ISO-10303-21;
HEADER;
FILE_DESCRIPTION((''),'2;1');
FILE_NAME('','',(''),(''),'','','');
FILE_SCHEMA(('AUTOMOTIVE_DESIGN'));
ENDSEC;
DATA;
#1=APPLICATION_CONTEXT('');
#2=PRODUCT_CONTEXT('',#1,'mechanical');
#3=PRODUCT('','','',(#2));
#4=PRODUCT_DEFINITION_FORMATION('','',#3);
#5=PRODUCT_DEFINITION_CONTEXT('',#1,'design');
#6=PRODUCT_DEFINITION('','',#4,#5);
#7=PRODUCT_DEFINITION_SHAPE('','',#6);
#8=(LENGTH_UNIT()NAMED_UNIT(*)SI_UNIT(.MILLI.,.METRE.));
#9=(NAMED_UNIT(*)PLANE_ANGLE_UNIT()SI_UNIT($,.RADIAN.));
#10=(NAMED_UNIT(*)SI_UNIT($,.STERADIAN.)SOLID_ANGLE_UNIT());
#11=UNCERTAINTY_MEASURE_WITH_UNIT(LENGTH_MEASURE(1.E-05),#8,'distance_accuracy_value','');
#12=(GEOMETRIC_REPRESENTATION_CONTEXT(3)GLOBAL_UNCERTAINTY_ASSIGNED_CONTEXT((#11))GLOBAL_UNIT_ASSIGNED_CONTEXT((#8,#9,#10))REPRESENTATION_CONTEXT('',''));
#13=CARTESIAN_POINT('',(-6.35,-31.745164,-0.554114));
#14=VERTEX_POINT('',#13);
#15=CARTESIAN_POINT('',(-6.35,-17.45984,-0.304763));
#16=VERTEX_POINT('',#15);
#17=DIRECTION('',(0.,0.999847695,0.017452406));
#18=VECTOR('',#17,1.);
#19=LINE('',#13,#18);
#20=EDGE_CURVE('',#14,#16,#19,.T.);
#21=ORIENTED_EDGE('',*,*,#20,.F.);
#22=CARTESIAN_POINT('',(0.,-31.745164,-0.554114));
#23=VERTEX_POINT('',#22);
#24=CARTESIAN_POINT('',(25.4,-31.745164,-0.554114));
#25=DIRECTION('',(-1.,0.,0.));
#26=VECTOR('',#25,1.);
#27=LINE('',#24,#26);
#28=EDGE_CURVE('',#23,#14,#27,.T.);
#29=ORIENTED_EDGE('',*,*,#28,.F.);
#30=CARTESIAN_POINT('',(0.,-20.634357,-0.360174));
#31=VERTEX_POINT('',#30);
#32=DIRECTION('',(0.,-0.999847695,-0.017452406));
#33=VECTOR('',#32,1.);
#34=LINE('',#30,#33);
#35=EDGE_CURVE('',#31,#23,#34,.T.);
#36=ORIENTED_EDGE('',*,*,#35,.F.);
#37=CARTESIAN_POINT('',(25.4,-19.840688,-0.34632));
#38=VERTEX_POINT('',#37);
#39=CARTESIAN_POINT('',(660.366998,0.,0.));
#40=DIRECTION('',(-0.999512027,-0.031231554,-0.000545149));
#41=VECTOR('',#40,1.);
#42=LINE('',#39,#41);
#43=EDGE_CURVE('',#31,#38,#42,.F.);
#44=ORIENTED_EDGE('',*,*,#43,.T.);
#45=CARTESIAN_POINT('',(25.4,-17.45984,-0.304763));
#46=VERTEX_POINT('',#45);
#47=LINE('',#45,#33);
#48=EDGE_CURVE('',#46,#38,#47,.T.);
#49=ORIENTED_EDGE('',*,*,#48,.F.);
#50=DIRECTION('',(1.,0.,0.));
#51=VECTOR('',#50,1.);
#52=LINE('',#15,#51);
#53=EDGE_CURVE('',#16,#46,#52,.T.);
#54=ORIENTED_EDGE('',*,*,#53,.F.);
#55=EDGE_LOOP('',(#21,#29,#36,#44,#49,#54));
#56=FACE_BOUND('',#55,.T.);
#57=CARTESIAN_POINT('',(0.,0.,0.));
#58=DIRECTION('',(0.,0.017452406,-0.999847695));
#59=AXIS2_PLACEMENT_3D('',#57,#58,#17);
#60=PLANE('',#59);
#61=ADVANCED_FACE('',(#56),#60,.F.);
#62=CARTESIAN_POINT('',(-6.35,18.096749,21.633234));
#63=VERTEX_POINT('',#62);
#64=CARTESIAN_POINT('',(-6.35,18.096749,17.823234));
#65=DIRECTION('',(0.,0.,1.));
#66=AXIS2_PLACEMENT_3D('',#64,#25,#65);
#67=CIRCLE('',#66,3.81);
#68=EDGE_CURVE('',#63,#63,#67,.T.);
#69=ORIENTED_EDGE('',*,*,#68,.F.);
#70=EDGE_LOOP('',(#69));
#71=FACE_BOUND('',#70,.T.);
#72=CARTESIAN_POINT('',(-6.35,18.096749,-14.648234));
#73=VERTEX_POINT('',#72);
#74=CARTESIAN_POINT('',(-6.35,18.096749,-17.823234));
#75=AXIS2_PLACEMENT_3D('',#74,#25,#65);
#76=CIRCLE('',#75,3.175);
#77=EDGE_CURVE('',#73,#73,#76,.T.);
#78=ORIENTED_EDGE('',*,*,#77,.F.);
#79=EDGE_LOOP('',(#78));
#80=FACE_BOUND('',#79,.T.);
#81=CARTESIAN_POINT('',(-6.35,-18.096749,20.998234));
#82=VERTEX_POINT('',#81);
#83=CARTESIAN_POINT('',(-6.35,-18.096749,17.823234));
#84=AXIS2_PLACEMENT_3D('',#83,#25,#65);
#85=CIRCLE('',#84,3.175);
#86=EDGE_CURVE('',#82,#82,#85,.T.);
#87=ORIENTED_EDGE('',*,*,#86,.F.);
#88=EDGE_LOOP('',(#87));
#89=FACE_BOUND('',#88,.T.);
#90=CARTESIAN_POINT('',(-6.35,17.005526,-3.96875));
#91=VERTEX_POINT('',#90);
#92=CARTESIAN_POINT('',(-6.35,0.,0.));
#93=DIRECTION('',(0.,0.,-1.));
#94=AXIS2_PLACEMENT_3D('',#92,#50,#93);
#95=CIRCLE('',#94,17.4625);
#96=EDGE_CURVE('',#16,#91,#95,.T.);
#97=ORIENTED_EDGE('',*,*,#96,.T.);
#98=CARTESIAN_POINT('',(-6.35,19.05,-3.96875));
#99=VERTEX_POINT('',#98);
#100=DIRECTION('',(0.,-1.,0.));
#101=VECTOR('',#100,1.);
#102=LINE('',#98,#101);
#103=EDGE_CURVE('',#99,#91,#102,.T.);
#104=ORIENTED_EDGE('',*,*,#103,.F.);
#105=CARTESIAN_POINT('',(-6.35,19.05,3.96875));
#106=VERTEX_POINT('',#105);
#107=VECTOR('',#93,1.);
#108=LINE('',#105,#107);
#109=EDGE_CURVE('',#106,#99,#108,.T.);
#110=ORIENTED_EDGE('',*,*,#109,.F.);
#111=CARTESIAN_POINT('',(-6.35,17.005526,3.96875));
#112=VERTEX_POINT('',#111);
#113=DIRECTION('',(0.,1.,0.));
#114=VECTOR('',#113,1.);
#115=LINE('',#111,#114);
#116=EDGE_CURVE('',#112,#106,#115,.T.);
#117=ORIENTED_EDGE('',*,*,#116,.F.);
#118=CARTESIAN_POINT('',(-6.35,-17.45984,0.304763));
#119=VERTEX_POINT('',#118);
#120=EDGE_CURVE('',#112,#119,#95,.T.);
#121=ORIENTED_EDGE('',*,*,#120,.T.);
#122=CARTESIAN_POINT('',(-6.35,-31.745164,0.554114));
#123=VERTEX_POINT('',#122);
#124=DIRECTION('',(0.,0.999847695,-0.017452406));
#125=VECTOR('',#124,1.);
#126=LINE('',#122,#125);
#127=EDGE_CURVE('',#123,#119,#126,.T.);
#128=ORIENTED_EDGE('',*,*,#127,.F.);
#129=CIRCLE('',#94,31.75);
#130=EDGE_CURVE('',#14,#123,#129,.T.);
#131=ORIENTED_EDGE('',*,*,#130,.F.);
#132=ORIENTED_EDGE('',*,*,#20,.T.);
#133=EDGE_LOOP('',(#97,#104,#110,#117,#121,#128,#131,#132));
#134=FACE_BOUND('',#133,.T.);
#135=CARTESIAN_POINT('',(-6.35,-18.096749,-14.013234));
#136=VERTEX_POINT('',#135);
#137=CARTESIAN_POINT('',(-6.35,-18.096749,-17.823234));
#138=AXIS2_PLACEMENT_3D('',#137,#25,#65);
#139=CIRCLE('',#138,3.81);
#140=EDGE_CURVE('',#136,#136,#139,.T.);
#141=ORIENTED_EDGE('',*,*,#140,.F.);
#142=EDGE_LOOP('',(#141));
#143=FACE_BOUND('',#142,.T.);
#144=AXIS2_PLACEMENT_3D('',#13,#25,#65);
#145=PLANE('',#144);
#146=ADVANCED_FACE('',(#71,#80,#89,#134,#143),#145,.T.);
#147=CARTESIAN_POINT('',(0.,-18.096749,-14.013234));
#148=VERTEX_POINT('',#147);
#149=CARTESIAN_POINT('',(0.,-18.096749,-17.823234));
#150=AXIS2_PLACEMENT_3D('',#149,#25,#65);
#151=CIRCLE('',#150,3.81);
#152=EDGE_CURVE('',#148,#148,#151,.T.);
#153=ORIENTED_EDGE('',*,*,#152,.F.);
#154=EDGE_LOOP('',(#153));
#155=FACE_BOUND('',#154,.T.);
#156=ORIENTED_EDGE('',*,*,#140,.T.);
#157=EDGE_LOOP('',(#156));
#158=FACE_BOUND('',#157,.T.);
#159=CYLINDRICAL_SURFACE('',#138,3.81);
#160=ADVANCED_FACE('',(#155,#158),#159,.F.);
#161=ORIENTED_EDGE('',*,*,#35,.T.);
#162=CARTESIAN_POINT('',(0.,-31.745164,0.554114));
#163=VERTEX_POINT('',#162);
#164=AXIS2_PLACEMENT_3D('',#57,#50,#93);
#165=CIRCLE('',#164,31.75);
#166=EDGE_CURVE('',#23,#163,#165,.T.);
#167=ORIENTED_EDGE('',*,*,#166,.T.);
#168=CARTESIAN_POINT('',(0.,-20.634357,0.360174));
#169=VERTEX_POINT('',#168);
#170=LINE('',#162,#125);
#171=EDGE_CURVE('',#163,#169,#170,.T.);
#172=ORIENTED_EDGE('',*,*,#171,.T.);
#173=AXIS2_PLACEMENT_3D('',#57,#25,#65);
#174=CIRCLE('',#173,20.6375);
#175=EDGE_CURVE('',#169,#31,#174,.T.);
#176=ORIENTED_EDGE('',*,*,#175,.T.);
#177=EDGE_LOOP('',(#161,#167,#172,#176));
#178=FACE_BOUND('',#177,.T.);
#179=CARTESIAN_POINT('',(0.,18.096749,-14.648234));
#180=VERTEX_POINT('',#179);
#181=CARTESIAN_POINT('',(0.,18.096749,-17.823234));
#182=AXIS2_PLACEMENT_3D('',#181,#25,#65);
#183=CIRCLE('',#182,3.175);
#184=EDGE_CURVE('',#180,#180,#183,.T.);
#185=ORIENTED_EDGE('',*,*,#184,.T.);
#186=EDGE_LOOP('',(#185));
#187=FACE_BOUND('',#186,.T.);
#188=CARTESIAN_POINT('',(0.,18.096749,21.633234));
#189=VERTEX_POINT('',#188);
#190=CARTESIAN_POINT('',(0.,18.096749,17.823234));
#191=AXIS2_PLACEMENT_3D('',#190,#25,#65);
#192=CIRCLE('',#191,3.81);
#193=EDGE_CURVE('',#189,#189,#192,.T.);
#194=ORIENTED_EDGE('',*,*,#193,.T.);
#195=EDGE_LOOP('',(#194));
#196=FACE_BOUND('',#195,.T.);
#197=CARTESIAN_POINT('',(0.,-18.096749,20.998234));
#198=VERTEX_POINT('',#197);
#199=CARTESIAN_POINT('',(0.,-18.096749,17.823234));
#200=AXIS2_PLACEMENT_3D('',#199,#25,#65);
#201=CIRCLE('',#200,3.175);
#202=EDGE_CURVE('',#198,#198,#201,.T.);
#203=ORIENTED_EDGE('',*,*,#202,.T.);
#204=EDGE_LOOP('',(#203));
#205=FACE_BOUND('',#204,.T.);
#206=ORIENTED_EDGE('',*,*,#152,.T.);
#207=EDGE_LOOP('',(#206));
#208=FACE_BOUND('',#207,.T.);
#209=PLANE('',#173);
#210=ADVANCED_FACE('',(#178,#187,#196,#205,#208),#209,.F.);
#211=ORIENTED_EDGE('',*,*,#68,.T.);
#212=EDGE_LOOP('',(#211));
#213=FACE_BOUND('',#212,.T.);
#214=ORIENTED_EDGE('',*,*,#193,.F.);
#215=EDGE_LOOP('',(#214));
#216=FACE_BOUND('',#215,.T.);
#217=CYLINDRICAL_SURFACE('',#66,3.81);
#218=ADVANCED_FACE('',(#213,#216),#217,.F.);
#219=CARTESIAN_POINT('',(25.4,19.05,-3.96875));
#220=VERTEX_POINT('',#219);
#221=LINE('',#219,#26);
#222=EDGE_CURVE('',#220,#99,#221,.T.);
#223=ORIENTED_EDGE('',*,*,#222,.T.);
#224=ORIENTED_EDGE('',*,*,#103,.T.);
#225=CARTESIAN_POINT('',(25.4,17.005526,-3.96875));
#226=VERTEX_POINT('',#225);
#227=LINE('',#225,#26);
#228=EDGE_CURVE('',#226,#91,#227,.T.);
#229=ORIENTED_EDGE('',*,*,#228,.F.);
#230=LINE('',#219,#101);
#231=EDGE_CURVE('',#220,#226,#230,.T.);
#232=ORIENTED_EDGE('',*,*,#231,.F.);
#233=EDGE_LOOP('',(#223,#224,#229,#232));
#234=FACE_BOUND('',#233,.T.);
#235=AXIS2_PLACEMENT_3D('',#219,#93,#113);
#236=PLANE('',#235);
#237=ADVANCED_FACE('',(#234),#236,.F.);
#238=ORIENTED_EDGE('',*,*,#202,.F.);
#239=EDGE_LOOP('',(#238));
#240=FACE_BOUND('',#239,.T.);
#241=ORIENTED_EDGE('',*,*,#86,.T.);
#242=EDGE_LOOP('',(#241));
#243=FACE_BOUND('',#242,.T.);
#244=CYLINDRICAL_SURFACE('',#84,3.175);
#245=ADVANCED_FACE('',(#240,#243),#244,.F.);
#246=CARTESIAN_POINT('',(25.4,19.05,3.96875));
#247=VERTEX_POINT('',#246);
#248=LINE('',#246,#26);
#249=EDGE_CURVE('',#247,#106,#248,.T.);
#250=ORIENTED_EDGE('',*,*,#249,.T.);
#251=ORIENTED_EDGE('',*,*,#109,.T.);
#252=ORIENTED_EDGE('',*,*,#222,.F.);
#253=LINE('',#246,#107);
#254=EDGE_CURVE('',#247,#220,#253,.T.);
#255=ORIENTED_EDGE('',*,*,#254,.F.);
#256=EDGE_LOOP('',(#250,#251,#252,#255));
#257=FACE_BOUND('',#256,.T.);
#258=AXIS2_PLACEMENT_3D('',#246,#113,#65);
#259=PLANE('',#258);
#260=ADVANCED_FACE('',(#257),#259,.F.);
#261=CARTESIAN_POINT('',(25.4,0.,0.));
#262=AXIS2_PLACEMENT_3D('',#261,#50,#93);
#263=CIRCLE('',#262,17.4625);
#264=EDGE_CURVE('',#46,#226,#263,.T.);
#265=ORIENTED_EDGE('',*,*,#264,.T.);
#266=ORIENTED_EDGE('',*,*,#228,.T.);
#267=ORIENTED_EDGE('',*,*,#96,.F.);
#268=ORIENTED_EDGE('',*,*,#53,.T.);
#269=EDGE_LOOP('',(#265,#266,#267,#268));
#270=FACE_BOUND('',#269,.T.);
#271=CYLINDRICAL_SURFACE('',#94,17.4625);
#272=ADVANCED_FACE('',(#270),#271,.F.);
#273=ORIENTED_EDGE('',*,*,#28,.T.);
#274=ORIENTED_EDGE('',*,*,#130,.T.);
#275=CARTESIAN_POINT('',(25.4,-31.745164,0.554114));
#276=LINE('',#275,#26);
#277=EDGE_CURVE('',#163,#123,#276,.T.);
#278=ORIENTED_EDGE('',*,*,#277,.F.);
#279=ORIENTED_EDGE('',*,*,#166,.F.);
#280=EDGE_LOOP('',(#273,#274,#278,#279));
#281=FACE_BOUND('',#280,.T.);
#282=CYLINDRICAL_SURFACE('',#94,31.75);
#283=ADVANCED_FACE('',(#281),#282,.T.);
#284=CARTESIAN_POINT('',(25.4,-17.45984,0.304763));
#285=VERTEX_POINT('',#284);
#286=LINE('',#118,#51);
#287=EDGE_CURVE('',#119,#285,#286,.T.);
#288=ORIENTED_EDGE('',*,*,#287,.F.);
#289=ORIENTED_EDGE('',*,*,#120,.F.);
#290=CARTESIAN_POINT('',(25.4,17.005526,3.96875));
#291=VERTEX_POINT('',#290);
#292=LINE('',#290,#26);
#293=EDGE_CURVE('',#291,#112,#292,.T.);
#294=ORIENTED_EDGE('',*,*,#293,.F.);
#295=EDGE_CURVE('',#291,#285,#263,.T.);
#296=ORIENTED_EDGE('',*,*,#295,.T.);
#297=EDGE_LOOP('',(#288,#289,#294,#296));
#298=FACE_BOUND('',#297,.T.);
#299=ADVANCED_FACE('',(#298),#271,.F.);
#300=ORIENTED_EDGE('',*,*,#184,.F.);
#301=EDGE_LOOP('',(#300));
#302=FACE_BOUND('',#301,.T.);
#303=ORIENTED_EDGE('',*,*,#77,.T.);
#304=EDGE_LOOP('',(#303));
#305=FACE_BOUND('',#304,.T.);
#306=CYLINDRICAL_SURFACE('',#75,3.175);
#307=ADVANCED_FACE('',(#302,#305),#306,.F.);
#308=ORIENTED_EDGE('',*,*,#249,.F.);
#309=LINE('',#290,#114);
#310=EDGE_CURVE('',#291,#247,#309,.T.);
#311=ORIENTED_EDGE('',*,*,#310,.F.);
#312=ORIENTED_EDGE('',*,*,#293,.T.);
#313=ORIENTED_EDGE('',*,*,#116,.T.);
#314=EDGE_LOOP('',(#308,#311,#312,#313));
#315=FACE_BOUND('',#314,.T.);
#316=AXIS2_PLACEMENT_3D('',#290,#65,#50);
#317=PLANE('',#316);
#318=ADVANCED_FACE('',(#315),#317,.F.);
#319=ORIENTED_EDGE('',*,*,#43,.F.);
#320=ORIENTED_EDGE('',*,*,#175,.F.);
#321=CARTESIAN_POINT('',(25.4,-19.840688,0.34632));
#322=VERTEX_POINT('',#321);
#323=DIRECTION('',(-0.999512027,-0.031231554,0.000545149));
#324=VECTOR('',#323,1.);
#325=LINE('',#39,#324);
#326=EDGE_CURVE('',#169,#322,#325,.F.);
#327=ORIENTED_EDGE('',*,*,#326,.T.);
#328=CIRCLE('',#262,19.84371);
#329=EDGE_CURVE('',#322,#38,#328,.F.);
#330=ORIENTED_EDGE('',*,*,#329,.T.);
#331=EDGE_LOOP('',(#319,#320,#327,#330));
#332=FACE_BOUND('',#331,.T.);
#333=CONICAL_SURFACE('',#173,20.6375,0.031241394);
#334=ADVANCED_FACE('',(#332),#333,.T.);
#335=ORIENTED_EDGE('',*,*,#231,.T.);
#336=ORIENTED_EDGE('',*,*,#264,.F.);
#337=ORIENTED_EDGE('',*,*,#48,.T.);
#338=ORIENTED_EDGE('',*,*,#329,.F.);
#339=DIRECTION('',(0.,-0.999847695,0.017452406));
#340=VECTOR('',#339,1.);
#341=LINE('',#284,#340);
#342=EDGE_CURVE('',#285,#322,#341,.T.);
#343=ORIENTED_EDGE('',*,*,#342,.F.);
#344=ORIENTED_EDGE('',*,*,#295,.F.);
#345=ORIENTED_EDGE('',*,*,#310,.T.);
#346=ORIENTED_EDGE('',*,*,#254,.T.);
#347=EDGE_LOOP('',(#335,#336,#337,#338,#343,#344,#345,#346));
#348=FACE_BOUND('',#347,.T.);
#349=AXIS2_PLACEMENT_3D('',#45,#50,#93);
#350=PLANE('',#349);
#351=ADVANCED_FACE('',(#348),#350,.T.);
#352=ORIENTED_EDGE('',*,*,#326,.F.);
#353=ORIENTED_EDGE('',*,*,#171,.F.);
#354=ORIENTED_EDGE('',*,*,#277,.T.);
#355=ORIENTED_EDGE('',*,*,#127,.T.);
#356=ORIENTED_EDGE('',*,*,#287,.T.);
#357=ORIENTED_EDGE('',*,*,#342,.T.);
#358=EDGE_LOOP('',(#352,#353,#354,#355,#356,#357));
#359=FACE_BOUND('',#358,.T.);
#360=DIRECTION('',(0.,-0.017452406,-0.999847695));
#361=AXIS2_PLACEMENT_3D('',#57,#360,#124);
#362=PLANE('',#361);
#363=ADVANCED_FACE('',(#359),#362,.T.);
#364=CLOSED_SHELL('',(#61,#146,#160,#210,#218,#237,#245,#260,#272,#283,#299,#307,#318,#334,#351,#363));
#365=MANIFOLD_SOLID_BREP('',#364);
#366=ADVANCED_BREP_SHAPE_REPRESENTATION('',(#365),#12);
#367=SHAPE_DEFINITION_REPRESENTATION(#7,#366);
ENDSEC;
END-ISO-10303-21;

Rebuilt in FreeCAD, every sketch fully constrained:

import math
import FreeCAD as App
import Part
import Sketcher
from FreeCAD import Vector
Q = App.Units.Quantity


def faces_at(feature, points):
    """Names of the faces that lie closest to the given points."""
    faces = feature.Shape.Faces
    near = lambda p: min(range(len(faces)), key=lambda i: faces[i].distToShape(Part.Vertex(*p))[0])
    return sorted({f"Face{near(p) + 1}" for p in points})


def add_polygon(sketch, points):
    """Adds a closed chain of lines whose ends are joined by coincident constraints."""
    first, n = sketch.GeometryCount, len(points)
    for a, b in zip(points, points[1:] + points[:1]):
        sketch.addGeometry(Part.LineSegment(App.Vector(*a, 0), App.Vector(*b, 0)), False)
    for i in range(n):
        sketch.addConstraint(Sketcher.Constraint("Coincident", first + i, 2, first + (i + 1) % n, 1))

doc = App.newDocument("Part")
body = doc.addObject("PartDesign::Body", "Body")

# Sketch on an angled plane
sketch1 = body.newObject("Sketcher::SketchObject", "Sketch")
sketch1.Placement = App.Placement(Vector(0, 0, 0), App.Rotation(Vector(1, 0, 0), Vector(0, -0.999847695, 0.017452406), Vector(0, -0.017452406, -0.999847695), "ZXY"))
add_polygon(sketch1, [(-6.35, 31.75), (-6.35, 17.4625), (25.4, 17.4625), (25.4, 31.75)])  # lines 0-3
sketch1.addConstraint(Sketcher.Constraint("Vertical", 0))
sketch1.addConstraint(Sketcher.Constraint("Horizontal", 1))
sketch1.addConstraint(Sketcher.Constraint("Vertical", 2))
sketch1.addConstraint(Sketcher.Constraint("Horizontal", 3))
sketch1.addConstraint(Sketcher.Constraint("DistanceX", -1, 1, 1, 2, Q("1 in")))
sketch1.addConstraint(Sketcher.Constraint("DistanceX", 1, 1, 1, 2, Q("1.25 in")))
sketch1.addConstraint(Sketcher.Constraint("DistanceY", 0, 2, 0, 1, Q("0.5625 in")))
sketch1.addConstraint(Sketcher.Constraint("DistanceY", -1, 1, 2, 2, Q("1.25 in")))
revolution = body.newObject("PartDesign::Revolution", "Revolution")
revolution.Profile = sketch1
revolution.ReferenceAxis = (sketch1, ["H_Axis"])
revolution.Angle = 358
revolution.Reversed = True

# Sketch on YZ plane
sketch2 = body.newObject("Sketcher::SketchObject", "Sketch001")
sketch2.AttachmentSupport = (doc.getObject("YZ_Plane"), [""])
sketch2.MapMode = "FlatFace"
sketch2.AttachmentOffset = App.Placement(Vector(0, 0, -0.25 * 25.4), App.Rotation())
sketch2.addGeometry(Part.LineSegment(Vector(17.005526, 3.96875, 0), Vector(19.05, 3.96875, 0)), False)
sketch2.addGeometry(Part.LineSegment(Vector(19.05, 3.96875, 0), Vector(19.05, -3.96875, 0)), False)
sketch2.addGeometry(Part.LineSegment(Vector(19.05, -3.96875, 0), Vector(17.005526, -3.96875, 0)), False)
sketch2.addGeometry(Part.ArcOfCircle(Part.Circle(Vector(0, 0, 0), Vector(0, 0, 1), 17.4625), math.radians(-13.136559), math.radians(13.136559)), False)
sketch2.addConstraint(Sketcher.Constraint("Coincident", 0, 2, 1, 1))
sketch2.addConstraint(Sketcher.Constraint("Coincident", 1, 2, 2, 1))
sketch2.addConstraint(Sketcher.Constraint("Coincident", 2, 2, 3, 1))
sketch2.addConstraint(Sketcher.Constraint("Coincident", 3, 2, 0, 1))
sketch2.addConstraint(Sketcher.Constraint("Horizontal", 0))
sketch2.addConstraint(Sketcher.Constraint("Vertical", 1))
sketch2.addConstraint(Sketcher.Constraint("Horizontal", 2))
sketch2.addConstraint(Sketcher.Constraint("Coincident", 3, 3, -1, 1))
sketch2.addConstraint(Sketcher.Constraint("Vertical", 2, 2, 3, 2))
sketch2.addConstraint(Sketcher.Constraint("Radius", 3, Q("0.6875 in")))
sketch2.addConstraint(Sketcher.Constraint("DistanceY", 1, 2, 1, 1, Q("0.3125 in")))
sketch2.addConstraint(Sketcher.Constraint("DistanceX", -1, 1, 0, 2, Q("0.75 in")))
pocket1 = body.newObject("PartDesign::Pocket", "Pocket")
pocket1.Profile = sketch2
pocket1.Type = "ThroughAll"
pocket1.Reversed = True

# Sketch on YZ plane
sketch3 = body.newObject("Sketcher::SketchObject", "Sketch002")
sketch3.AttachmentSupport = (doc.getObject("YZ_Plane"), [""])
sketch3.MapMode = "FlatFace"
sketch3.addGeometry(Part.LineSegment(Vector(-20.634357, -0.360174, 0), Vector(-31.745164, -0.554114, 0)), False)
sketch3.addGeometry(Part.ArcOfCircle(Part.Circle(Vector(0, 0, 0), Vector(0, 0, 1), 31.75), math.radians(-179), math.radians(179)), False)
sketch3.addGeometry(Part.LineSegment(Vector(-31.745164, 0.554114, 0), Vector(-20.634357, 0.360174, 0)), False)
sketch3.addGeometry(Part.ArcOfCircle(Part.Circle(Vector(0, 0, 0), Vector(0, 0, 1), 20.6375), math.radians(-179), math.radians(179)), False)
sketch3.addConstraint(Sketcher.Constraint("Coincident", 0, 2, 1, 1))
sketch3.addConstraint(Sketcher.Constraint("Coincident", 1, 2, 2, 1))
sketch3.addConstraint(Sketcher.Constraint("Coincident", 2, 2, 3, 2))
sketch3.addConstraint(Sketcher.Constraint("Coincident", 3, 1, 0, 1))
sketch3.addConstraint(Sketcher.Constraint("Coincident", 1, 3, -1, 1))
sketch3.addConstraint(Sketcher.Constraint("Coincident", 3, 3, -1, 1))
sketch3.addConstraint(Sketcher.Constraint("Vertical", 0, 2, 1, 2))
sketch3.addConstraint(Sketcher.Constraint("Vertical", 2, 2, 3, 1))
sketch3.addConstraint(Sketcher.Constraint("Radius", 1, Q("1.25 in")))
sketch3.addConstraint(Sketcher.Constraint("Angle", 0, Q("-179 deg")))
sketch3.addConstraint(Sketcher.Constraint("Radius", 3, Q("0.8125 in")))
sketch3.addConstraint(Sketcher.Constraint("DistanceY", 3, 1, 2, 2, 0.720348))
pocket2 = body.newObject("PartDesign::Pocket", "Pocket001")
pocket2.Profile = sketch3
pocket2.Length = Q("1 in")
pocket2.Reversed = True
doc.recompute()

draft = body.newObject("PartDesign::Draft", "Draft")
draft.Base = (pocket2, faces_at(pocket2, [(12.7, 20.637, 0)]))
draft.NeutralPlane = (doc.getObject("YZ_Plane"), [""])
draft.Angle = 1.79
draft.Reversed = False

# Sketch on YZ plane
sketch4 = body.newObject("Sketcher::SketchObject", "Sketch003")
sketch4.AttachmentSupport = (doc.getObject("YZ_Plane"), [""])
sketch4.MapMode = "FlatFace"
sketch4.AttachmentOffset = App.Placement(Vector(0, 0, -0.25 * 25.4), App.Rotation())
sketch4.addGeometry(Part.Circle(Vector(-18.096749, -17.823234, 0), Vector(0, 0, 1), 3.81), False)
sketch4.addGeometry(Part.Circle(Vector(18.096749, 17.823234, 0), Vector(0, 0, 1), 3.81), False)
sketch4.addConstraint(Sketcher.Constraint("Equal", 0, 1))
sketch4.addConstraint(Sketcher.Constraint("Symmetric", 0, 3, 1, 3, -1, 1))
sketch4.addConstraint(Sketcher.Constraint("Diameter", 0, Q("0.3 in")))
sketch4.addConstraint(Sketcher.Constraint("DistanceX", 0, 3, 1, 3, 36.193498))
sketch4.addConstraint(Sketcher.Constraint("DistanceY", 0, 3, 1, 3, 35.646468))
doc.recompute()
hole = body.newObject("PartDesign::Hole", "Hole")
hole.Profile = sketch4
hole.ThreadType = "None"
hole.Diameter = Q("0.3 in")
hole.DepthType = "Dimension"
hole.Depth = Q("1.25 in")
hole.DrillPoint = "Flat"
hole.Reversed = True

# Sketch on YZ plane
sketch5 = body.newObject("Sketcher::SketchObject", "Sketch004")
sketch5.AttachmentSupport = (doc.getObject("YZ_Plane"), [""])
sketch5.MapMode = "FlatFace"
sketch5.AttachmentOffset = App.Placement(Vector(0, 0, -0.25 * 25.4), App.Rotation())
sketch5.addGeometry(Part.Circle(Vector(18.096749, -17.823234, 0), Vector(0, 0, 1), 3.175), False)
sketch5.addGeometry(Part.Circle(Vector(-18.096749, 17.823234, 0), Vector(0, 0, 1), 3.175), False)
sketch5.addConstraint(Sketcher.Constraint("Equal", 0, 1))
sketch5.addConstraint(Sketcher.Constraint("Symmetric", 0, 3, 1, 3, -1, 1))
sketch5.addConstraint(Sketcher.Constraint("Diameter", 0, Q("0.25 in")))
sketch5.addConstraint(Sketcher.Constraint("DistanceX", 1, 3, 0, 3, 36.193498))
sketch5.addConstraint(Sketcher.Constraint("DistanceY", 0, 3, 1, 3, 35.646468))
doc.recompute()
hole2 = body.newObject("PartDesign::Hole", "Hole001")
hole2.Profile = sketch5
hole2.ThreadType = "None"
hole2.Diameter = Q("0.25 in")
hole2.DepthType = "Dimension"
hole2.Depth = Q("1.25 in")
hole2.DrillPoint = "Flat"
hole2.Reversed = True

doc.recompute()
